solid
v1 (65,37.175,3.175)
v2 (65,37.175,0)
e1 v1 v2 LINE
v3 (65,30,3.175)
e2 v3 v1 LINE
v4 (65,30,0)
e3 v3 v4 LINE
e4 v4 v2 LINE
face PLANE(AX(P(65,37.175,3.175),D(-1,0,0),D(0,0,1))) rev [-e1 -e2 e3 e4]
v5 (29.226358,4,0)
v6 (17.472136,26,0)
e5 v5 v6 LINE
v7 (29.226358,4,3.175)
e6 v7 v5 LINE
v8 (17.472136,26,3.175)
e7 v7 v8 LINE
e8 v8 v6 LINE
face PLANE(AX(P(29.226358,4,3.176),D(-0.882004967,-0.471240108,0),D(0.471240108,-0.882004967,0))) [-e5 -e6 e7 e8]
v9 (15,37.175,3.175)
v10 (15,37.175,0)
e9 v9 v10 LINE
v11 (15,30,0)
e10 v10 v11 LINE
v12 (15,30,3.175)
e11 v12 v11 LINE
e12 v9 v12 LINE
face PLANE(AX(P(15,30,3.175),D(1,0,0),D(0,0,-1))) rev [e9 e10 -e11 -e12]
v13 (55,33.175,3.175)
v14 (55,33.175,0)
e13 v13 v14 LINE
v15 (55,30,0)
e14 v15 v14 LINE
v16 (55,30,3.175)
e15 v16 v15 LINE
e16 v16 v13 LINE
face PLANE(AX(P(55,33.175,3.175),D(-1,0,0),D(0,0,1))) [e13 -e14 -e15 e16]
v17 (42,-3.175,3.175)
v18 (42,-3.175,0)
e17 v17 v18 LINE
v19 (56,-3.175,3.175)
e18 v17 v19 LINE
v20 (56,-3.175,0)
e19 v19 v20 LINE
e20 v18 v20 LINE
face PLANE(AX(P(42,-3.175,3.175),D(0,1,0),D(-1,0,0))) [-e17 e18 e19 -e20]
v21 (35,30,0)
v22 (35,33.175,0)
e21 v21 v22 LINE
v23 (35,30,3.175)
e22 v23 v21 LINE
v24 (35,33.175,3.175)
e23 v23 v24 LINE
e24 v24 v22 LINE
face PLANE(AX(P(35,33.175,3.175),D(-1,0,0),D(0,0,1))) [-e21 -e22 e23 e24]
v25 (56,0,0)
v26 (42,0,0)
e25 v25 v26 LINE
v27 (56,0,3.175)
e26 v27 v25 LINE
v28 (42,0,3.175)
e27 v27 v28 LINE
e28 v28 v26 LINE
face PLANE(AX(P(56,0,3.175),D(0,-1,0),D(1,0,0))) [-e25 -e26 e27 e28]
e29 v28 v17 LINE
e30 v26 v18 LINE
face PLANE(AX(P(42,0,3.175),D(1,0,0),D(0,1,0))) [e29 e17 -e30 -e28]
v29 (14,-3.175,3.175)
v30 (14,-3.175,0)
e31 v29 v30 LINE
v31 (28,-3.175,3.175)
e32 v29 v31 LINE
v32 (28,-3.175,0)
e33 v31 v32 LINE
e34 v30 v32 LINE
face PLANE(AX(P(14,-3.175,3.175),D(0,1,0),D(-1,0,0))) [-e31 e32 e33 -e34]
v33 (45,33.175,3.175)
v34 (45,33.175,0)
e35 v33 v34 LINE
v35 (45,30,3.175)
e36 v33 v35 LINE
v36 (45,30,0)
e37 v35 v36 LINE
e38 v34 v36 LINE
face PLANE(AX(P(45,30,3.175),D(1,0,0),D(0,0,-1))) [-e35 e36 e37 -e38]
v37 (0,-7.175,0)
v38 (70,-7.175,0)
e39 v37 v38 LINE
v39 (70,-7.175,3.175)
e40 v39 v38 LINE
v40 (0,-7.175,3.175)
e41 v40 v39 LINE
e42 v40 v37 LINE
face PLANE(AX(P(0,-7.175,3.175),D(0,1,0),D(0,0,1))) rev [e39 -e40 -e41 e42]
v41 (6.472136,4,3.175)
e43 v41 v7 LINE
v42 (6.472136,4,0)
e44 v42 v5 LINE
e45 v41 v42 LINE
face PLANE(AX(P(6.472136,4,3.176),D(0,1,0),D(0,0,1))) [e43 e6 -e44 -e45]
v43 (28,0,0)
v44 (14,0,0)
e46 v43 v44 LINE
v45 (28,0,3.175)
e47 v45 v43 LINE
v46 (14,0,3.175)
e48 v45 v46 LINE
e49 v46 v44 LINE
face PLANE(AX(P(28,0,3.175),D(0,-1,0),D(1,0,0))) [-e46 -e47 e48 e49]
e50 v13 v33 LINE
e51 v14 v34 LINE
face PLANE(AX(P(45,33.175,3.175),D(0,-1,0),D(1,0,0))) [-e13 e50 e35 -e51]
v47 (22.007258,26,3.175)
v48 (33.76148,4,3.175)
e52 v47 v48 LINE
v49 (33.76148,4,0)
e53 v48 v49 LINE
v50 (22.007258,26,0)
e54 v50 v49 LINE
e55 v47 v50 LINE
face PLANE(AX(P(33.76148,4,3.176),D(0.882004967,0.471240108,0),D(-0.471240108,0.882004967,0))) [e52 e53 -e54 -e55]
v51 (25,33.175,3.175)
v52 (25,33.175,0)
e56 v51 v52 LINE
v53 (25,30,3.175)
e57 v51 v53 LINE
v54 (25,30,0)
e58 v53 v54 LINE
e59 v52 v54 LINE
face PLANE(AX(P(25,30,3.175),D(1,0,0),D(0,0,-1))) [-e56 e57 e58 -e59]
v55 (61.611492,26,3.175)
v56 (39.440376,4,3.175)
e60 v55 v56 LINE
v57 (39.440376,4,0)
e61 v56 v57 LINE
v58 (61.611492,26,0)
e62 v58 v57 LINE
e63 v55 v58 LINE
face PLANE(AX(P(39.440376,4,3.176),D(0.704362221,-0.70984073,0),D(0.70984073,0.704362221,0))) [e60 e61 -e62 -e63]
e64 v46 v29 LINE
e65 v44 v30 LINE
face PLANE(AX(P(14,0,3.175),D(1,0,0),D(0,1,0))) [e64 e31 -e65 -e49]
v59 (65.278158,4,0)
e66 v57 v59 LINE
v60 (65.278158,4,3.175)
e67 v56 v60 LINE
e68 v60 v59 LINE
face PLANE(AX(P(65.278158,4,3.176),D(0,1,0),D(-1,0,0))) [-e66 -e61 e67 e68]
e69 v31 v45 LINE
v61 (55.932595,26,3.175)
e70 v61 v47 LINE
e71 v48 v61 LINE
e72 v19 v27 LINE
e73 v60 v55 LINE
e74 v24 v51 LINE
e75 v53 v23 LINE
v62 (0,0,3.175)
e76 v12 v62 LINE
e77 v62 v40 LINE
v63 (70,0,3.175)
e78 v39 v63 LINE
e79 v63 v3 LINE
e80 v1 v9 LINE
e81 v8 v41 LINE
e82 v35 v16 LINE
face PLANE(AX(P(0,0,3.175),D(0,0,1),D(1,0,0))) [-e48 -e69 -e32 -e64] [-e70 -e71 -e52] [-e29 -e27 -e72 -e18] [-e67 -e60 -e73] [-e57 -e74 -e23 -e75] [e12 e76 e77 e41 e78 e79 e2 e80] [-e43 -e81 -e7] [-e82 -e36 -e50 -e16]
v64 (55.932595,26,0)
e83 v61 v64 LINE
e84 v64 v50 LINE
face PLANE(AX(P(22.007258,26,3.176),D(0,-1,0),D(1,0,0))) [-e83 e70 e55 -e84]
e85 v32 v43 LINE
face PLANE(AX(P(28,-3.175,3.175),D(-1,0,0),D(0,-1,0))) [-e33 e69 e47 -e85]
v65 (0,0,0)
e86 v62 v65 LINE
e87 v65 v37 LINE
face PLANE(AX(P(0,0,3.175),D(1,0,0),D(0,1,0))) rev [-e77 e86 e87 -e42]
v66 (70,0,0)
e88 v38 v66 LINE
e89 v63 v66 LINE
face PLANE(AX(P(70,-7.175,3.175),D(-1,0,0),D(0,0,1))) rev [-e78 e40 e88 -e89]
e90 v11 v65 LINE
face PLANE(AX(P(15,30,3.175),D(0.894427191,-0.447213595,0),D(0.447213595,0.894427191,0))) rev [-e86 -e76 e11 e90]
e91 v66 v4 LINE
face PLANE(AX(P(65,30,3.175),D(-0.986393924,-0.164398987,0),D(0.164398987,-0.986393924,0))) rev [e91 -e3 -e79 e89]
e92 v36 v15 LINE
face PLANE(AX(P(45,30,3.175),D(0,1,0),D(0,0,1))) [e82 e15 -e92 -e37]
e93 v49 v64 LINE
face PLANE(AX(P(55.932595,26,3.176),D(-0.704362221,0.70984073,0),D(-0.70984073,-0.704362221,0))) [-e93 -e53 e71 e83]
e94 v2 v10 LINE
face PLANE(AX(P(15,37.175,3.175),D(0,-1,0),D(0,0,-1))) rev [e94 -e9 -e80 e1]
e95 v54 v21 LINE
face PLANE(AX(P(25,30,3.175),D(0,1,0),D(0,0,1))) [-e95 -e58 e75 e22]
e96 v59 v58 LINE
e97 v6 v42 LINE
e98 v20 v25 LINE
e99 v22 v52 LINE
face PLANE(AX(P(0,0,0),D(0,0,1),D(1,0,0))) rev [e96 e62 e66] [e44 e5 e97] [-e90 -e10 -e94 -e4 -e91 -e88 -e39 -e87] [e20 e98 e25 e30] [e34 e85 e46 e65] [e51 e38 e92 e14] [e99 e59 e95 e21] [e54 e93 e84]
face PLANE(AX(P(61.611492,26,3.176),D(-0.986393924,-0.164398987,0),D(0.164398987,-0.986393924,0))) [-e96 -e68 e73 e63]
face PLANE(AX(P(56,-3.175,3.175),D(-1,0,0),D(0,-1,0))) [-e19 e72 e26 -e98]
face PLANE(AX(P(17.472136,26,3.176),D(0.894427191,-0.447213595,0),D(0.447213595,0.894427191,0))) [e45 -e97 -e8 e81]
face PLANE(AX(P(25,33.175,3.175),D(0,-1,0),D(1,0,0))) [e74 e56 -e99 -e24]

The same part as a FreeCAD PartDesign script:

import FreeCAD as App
import Part
import Sketcher
from FreeCAD import Vector
Q = App.Units.Quantity

doc = App.newDocument("Part")
body = doc.addObject("PartDesign::Body", "Body")

sketch1 = body.newObject("Sketcher::SketchObject", "Sketch")
sketch1.AttachmentSupport = (doc.getObject("XY_Plane"), [""])
sketch1.MapMode = "FlatFace"
sketch1.addGeometry(Part.LineSegment(Vector(15, 30, 0), Vector(0, 0, 0)), False)
sketch1.addGeometry(Part.LineSegment(Vector(0, 0, 0), Vector(0, -7.175, 0)), False)
sketch1.addGeometry(Part.LineSegment(Vector(0, -7.175, 0), Vector(70, -7.175, 0)), False)
sketch1.addGeometry(Part.LineSegment(Vector(70, -7.175, 0), Vector(70, 0, 0)), False)
sketch1.addGeometry(Part.LineSegment(Vector(70, 0, 0), Vector(65, 30, 0)), False)
sketch1.addGeometry(Part.LineSegment(Vector(65, 30, 0), Vector(65, 37.175, 0)), False)
sketch1.addGeometry(Part.LineSegment(Vector(65, 37.175, 0), Vector(15, 37.175, 0)), False)
sketch1.addGeometry(Part.LineSegment(Vector(15, 37.175, 0), Vector(15, 30, 0)), False)
sketch1.addGeometry(Part.LineSegment(Vector(28, -3.175, 0), Vector(14, -3.175, 0)), False)
sketch1.addGeometry(Part.LineSegment(Vector(14, -3.175, 0), Vector(14, 0, 0)), False)
sketch1.addGeometry(Part.LineSegment(Vector(14, 0, 0), Vector(28, 0, 0)), False)
sketch1.addGeometry(Part.LineSegment(Vector(28, 0, 0), Vector(28, -3.175, 0)), False)
sketch1.addGeometry(Part.LineSegment(Vector(56, -3.175, 0), Vector(42, -3.175, 0)), False)
sketch1.addGeometry(Part.LineSegment(Vector(42, -3.175, 0), Vector(42, 0, 0)), False)
sketch1.addGeometry(Part.LineSegment(Vector(42, 0, 0), Vector(56, 0, 0)), False)
sketch1.addGeometry(Part.LineSegment(Vector(56, 0, 0), Vector(56, -3.175, 0)), False)
sketch1.addGeometry(Part.LineSegment(Vector(35, 30, 0), Vector(25, 30, 0)), False)
sketch1.addGeometry(Part.LineSegment(Vector(25, 30, 0), Vector(25, 33.175, 0)), False)
sketch1.addGeometry(Part.LineSegment(Vector(25, 33.175, 0), Vector(35, 33.175, 0)), False)
sketch1.addGeometry(Part.LineSegment(Vector(35, 33.175, 0), Vector(35, 30, 0)), False)
sketch1.addGeometry(Part.LineSegment(Vector(55, 30, 0), Vector(45, 30, 0)), False)
sketch1.addGeometry(Part.LineSegment(Vector(45, 30, 0), Vector(45, 33.175, 0)), False)
sketch1.addGeometry(Part.LineSegment(Vector(45, 33.175, 0), Vector(55, 33.175, 0)), False)
sketch1.addGeometry(Part.LineSegment(Vector(55, 33.175, 0), Vector(55, 30, 0)), False)
sketch1.addConstraint(Sketcher.Constraint("Coincident", 0, 2, 1, 1))
sketch1.addConstraint(Sketcher.Constraint("Coincident", 1, 2, 2, 1))
sketch1.addConstraint(Sketcher.Constraint("Coincident", 2, 2, 3, 1))
sketch1.addConstraint(Sketcher.Constraint("Coincident", 3, 2, 4, 1))
sketch1.addConstraint(Sketcher.Constraint("Coincident", 4, 2, 5, 1))
sketch1.addConstraint(Sketcher.Constraint("Coincident", 5, 2, 6, 1))
sketch1.addConstraint(Sketcher.Constraint("Coincident", 6, 2, 7, 1))
sketch1.addConstraint(Sketcher.Constraint("Coincident", 7, 2, 0, 1))
sketch1.addConstraint(Sketcher.Constraint("Coincident", 8, 2, 9, 1))
sketch1.addConstraint(Sketcher.Constraint("Coincident", 9, 2, 10, 1))
sketch1.addConstraint(Sketcher.Constraint("Coincident", 10, 2, 11, 1))
sketch1.addConstraint(Sketcher.Constraint("Coincident", 11, 2, 8, 1))
sketch1.addConstraint(Sketcher.Constraint("Coincident", 12, 2, 13, 1))
sketch1.addConstraint(Sketcher.Constraint("Coincident", 13, 2, 14, 1))
sketch1.addConstraint(Sketcher.Constraint("Coincident", 14, 2, 15, 1))
sketch1.addConstraint(Sketcher.Constraint("Coincident", 15, 2, 12, 1))
sketch1.addConstraint(Sketcher.Constraint("Coincident", 16, 2, 17, 1))
sketch1.addConstraint(Sketcher.Constraint("Coincident", 17, 2, 18, 1))
sketch1.addConstraint(Sketcher.Constraint("Coincident", 18, 2, 19, 1))
sketch1.addConstraint(Sketcher.Constraint("Coincident", 19, 2, 16, 1))
sketch1.addConstraint(Sketcher.Constraint("Coincident", 20, 2, 21, 1))
sketch1.addConstraint(Sketcher.Constraint("Coincident", 21, 2, 22, 1))
sketch1.addConstraint(Sketcher.Constraint("Coincident", 22, 2, 23, 1))
sketch1.addConstraint(Sketcher.Constraint("Coincident", 23, 2, 20, 1))
sketch1.addConstraint(Sketcher.Constraint("Vertical", 1))
sketch1.addConstraint(Sketcher.Constraint("Horizontal", 2))
sketch1.addConstraint(Sketcher.Constraint("Vertical", 3))
sketch1.addConstraint(Sketcher.Constraint("Vertical", 5))
sketch1.addConstraint(Sketcher.Constraint("Horizontal", 6))
sketch1.addConstraint(Sketcher.Constraint("Vertical", 7))
sketch1.addConstraint(Sketcher.Constraint("Horizontal", 8))
sketch1.addConstraint(Sketcher.Constraint("Vertical", 9))
sketch1.addConstraint(Sketcher.Constraint("Horizontal", 10))
sketch1.addConstraint(Sketcher.Constraint("Vertical", 11))
sketch1.addConstraint(Sketcher.Constraint("Horizontal", 12))
sketch1.addConstraint(Sketcher.Constraint("Vertical", 13))
sketch1.addConstraint(Sketcher.Constraint("Horizontal", 14))
sketch1.addConstraint(Sketcher.Constraint("Vertical", 15))
sketch1.addConstraint(Sketcher.Constraint("Horizontal", 16))
sketch1.addConstraint(Sketcher.Constraint("Vertical", 17))
sketch1.addConstraint(Sketcher.Constraint("Horizontal", 18))
sketch1.addConstraint(Sketcher.Constraint("Vertical", 19))
sketch1.addConstraint(Sketcher.Constraint("Horizontal", 20))
sketch1.addConstraint(Sketcher.Constraint("Vertical", 21))
sketch1.addConstraint(Sketcher.Constraint("Horizontal", 22))
sketch1.addConstraint(Sketcher.Constraint("Vertical", 23))
sketch1.addConstraint(Sketcher.Constraint("Coincident", 0, 2, -1, 1))
sketch1.addConstraint(Sketcher.Constraint("PointOnObject", 3, 2, -1))
sketch1.addConstraint(Sketcher.Constraint("PointOnObject", 9, 2, -1))
sketch1.addConstraint(Sketcher.Constraint("PointOnObject", 13, 2, -1))
sketch1.addConstraint(Sketcher.Constraint("Horizontal", 4, 2, 7, 2))
sketch1.addConstraint(Sketcher.Constraint("Horizontal", 11, 2, 12, 2))
sketch1.addConstraint(Sketcher.Constraint("Horizontal", 7, 2, 16, 2))
sketch1.addConstraint(Sketcher.Constraint("Horizontal", 19, 2, 20, 2))
sketch1.addConstraint(Sketcher.Constraint("Horizontal", 18, 2, 21, 2))
sketch1.addConstraint(Sketcher.Constraint("Equal", 10, 12))
sketch1.addConstraint(Sketcher.Constraint("Equal", 18, 20))
sketch1.addConstraint(Sketcher.Constraint("Equal", 3, 5))
sketch1.addConstraint(Sketcher.Constraint("Equal", 15, 17))
sketch1.addConstraint(Sketcher.Constraint("DistanceX", 2, 1, 2, 2, Q("70 mm")))
sketch1.addConstraint(Sketcher.Constraint("DistanceX", 6, 2, 6, 1, Q("50 mm")))
sketch1.addConstraint(Sketcher.Constraint("DistanceX", 8, 2, 8, 1, Q("14 mm")))
sketch1.addConstraint(Sketcher.Constraint("DistanceX", 16, 2, 16, 1, Q("10 mm")))
sketch1.addConstraint(Sketcher.Constraint("DistanceX", -1, 1, 4, 2, Q("65 mm")))
sketch1.addConstraint(Sketcher.Constraint("DistanceY", -1, 1, 4, 2, Q("30 mm")))
sketch1.addConstraint(Sketcher.Constraint("DistanceX", -1, 1, 8, 2, Q("14 mm")))
sketch1.addConstraint(Sketcher.Constraint("DistanceX", -1, 1, 12, 2, Q("42 mm")))
sketch1.addConstraint(Sketcher.Constraint("DistanceX", -1, 1, 16, 2, Q("25 mm")))
sketch1.addConstraint(Sketcher.Constraint("DistanceX", -1, 1, 20, 2, Q("45 mm")))
sketch1.addConstraint(Sketcher.Constraint("DistanceY", 1, 2, 8, 2, Q("4 mm")))
sketch1.addConstraint(Sketcher.Constraint("DistanceY", 1, 2, 1, 1, Q("7.175 mm")))
pad1 = body.newObject("PartDesign::Pad", "Pad")
pad1.Profile = sketch1
pad1.Length = 3.175

sketch2 = body.newObject("Sketcher::SketchObject", "Sketch001")
sketch2.AttachmentSupport = (doc.getObject("XY_Plane"), [""])
sketch2.MapMode = "FlatFace"
sketch2.addGeometry(Part.LineSegment(Vector(65.278158, 4, 0), Vector(61.611492, 26, 0)), False)
sketch2.addGeometry(Part.LineSegment(Vector(61.611492, 26, 0), Vector(39.440376, 4, 0)), False)
sketch2.addGeometry(Part.LineSegment(Vector(39.440376, 4, 0), Vector(65.278158, 4, 0)), False)
sketch2.addConstraint(Sketcher.Constraint("Coincident", 0, 2, 1, 1))
sketch2.addConstraint(Sketcher.Constraint("Coincident", 1, 2, 2, 1))
sketch2.addConstraint(Sketcher.Constraint("Coincident", 2, 2, 0, 1))
sketch2.addConstraint(Sketcher.Constraint("Horizontal", 2))
sketch2.addConstraint(Sketcher.Constraint("DistanceY", -1, 1, 0, 2, Q("26 mm")))
sketch2.addConstraint(Sketcher.Constraint("DistanceY", -1, 1, 1, 2, Q("4 mm")))
sketch2.addConstraint(Sketcher.Constraint("Distance", 1, Q("31.23393 mm")))
sketch2.addConstraint(Sketcher.Constraint("DistanceX", 2, 1, 2, 2, Q("25.837782 mm")))
sketch2.addConstraint(Sketcher.Constraint("DistanceX", -1, 1, 0, 2, Q("61.611492 mm")))
pocket1 = body.newObject("PartDesign::Pocket", "Pocket")
pocket1.Profile = sketch2
pocket1.Type = "UpToFirst"
pocket1.Reversed = True

sketch3 = body.newObject("Sketcher::SketchObject", "Sketch002")
sketch3.AttachmentSupport = (doc.getObject("XY_Plane"), [""])
sketch3.MapMode = "FlatFace"
sketch3.addGeometry(Part.LineSegment(Vector(33.76148, 4, 0), Vector(55.932595, 26, 0)), False)
sketch3.addGeometry(Part.LineSegment(Vector(55.932595, 26, 0), Vector(22.007258, 26, 0)), False)
sketch3.addGeometry(Part.LineSegment(Vector(22.007258, 26, 0), Vector(33.76148, 4, 0)), False)
sketch3.addConstraint(Sketcher.Constraint("Coincident", 0, 2, 1, 1))
sketch3.addConstraint(Sketcher.Constraint("Coincident", 1, 2, 2, 1))
sketch3.addConstraint(Sketcher.Constraint("Coincident", 2, 2, 0, 1))
sketch3.addConstraint(Sketcher.Constraint("Horizontal", 1))
sketch3.addConstraint(Sketcher.Constraint("DistanceY", -1, 1, 0, 2, Q("26 mm")))
sketch3.addConstraint(Sketcher.Constraint("DistanceY", -1, 1, 2, 2, Q("4 mm")))
sketch3.addConstraint(Sketcher.Constraint("Distance", 0, Q("31.23393 mm")))
sketch3.addConstraint(Sketcher.Constraint("Distance", 2, Q("24.94317 mm")))
sketch3.addConstraint(Sketcher.Constraint("DistanceX", -1, 1, 2, 2, Q("33.76148 mm")))
pocket2 = body.newObject("PartDesign::Pocket", "Pocket001")
pocket2.Profile = sketch3
pocket2.Type = "UpToFirst"
pocket2.Reversed = True

sketch4 = body.newObject("Sketcher::SketchObject", "Sketch003")
sketch4.AttachmentSupport = (doc.getObject("XY_Plane"), [""])
sketch4.MapMode = "FlatFace"
sketch4.addGeometry(Part.LineSegment(Vector(17.472136, 26, 0), Vector(6.472136, 4, 0)), False)
sketch4.addGeometry(Part.LineSegment(Vector(6.472136, 4, 0), Vector(29.226358, 4, 0)), False)
sketch4.addGeometry(Part.LineSegment(Vector(29.226358, 4, 0), Vector(17.472136, 26, 0)), False)
sketch4.addConstraint(Sketcher.Constraint("Coincident", 0, 2, 1, 1))
sketch4.addConstraint(Sketcher.Constraint("Coincident", 1, 2, 2, 1))
sketch4.addConstraint(Sketcher.Constraint("Coincident", 2, 2, 0, 1))
sketch4.addConstraint(Sketcher.Constraint("Horizontal", 1))
sketch4.addConstraint(Sketcher.Constraint("DistanceY", -1, 1, 0, 2, Q("4 mm")))
sketch4.addConstraint(Sketcher.Constraint("DistanceY", -1, 1, 2, 2, Q("26 mm")))
sketch4.addConstraint(Sketcher.Constraint("DistanceX", 0, 2, 2, 2, Q("11 mm")))
sketch4.addConstraint(Sketcher.Constraint("Distance", 2, Q("24.94317 mm")))
sketch4.addConstraint(Sketcher.Constraint("DistanceX", -1, 1, 1, 2, Q("29.226358 mm")))
pocket3 = body.newObject("PartDesign::Pocket", "Pocket002")
pocket3.Profile = sketch4
pocket3.Type = "UpToFirst"
pocket3.Reversed = True

doc.recompute()
